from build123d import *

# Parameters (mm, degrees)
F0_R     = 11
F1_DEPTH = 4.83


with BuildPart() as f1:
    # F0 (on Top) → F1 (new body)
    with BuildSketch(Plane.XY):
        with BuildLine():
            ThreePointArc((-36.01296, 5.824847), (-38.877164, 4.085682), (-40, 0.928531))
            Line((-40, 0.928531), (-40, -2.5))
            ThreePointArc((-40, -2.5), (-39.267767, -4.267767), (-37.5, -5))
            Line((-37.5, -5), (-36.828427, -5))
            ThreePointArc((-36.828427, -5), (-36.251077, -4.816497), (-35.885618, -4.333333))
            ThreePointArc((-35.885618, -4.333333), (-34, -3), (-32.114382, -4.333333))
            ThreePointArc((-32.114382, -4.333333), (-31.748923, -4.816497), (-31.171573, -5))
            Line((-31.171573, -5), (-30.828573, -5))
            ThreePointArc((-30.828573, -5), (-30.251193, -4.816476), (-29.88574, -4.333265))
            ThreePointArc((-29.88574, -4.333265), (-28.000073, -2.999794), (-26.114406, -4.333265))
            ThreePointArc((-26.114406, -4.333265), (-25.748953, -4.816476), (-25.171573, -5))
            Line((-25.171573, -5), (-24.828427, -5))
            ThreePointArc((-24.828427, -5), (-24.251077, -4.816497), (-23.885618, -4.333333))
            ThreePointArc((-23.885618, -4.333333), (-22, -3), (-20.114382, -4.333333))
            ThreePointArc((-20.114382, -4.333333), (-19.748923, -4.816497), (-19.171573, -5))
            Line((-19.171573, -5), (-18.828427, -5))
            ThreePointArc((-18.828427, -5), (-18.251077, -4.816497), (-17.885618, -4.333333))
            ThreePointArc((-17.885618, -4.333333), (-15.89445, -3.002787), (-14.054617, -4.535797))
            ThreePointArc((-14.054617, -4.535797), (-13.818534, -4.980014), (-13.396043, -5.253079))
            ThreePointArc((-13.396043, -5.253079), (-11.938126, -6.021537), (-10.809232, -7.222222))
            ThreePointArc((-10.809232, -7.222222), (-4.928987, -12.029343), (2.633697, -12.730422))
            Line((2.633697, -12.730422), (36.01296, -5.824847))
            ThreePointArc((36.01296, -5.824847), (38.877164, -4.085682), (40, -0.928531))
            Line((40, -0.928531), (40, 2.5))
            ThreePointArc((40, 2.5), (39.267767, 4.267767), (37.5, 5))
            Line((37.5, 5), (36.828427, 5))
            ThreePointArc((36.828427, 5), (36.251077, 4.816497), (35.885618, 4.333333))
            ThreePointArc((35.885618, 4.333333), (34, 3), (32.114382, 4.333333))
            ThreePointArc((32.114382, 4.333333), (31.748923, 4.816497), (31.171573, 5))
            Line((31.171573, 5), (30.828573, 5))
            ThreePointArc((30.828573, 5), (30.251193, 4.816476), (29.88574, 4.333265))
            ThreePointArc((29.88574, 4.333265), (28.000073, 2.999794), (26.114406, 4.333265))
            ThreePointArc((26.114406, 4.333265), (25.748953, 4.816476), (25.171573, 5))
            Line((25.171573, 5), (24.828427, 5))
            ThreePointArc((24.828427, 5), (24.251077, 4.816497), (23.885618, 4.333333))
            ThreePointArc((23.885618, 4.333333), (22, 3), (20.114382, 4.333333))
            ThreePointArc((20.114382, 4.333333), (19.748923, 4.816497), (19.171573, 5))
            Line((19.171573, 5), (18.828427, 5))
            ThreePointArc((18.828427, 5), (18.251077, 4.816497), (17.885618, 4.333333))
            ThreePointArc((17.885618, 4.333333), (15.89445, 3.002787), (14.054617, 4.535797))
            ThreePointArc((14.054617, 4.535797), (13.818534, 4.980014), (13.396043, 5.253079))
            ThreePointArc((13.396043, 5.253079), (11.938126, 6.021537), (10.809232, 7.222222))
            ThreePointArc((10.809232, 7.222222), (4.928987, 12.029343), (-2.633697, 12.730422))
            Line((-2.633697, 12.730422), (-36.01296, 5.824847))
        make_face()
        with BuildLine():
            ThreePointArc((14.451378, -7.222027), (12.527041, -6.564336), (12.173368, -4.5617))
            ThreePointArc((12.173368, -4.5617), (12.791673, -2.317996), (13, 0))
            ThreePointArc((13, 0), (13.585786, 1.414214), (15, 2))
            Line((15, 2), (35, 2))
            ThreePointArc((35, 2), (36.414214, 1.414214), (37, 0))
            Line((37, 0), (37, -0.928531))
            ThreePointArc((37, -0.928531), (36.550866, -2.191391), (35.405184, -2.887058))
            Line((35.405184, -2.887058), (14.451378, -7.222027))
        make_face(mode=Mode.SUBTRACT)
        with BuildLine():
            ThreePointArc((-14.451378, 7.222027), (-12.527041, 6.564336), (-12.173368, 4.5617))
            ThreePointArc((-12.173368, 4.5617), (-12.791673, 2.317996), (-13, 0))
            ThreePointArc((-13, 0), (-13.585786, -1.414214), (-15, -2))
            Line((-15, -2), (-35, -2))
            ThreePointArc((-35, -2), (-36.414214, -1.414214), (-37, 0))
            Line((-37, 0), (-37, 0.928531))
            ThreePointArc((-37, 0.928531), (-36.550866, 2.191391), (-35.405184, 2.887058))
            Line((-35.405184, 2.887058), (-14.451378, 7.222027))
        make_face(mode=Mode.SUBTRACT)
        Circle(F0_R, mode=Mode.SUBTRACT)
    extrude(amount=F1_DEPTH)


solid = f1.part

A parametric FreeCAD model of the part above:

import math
import FreeCAD as App
import Part
import Sketcher

V = App.Vector

doc = App.newDocument("Part")
params = doc.addObject("Spreadsheet::Sheet", "Params")
for row, (alias, value) in enumerate([
    ("sketch1_diameter", "22 mm"),
    ("sketch1_radius", "4.999999 mm"),
    ("sketch1_radius2", "0.999999 mm"),
    ("sketch1_radius3", "2 mm"),
    ("sketch1_radius4", "0.999999 mm"),
    ("pad1_length", "4.83 mm"),
], start=1):
    params.set(f"A{row}", alias)
    params.set(f"B{row}", "=" + value)
    params.setAlias(f"B{row}", alias)

body = doc.addObject("PartDesign::Body", "Body")

# Sketch on XY plane
sketch1 = doc.addObject("Sketcher::SketchObject", "Sketch")
body.addObject(sketch1)
sketch1.AttachmentSupport = (doc.XY_Plane, [""])
sketch1.MapMode = "FlatFace"
sketch1.addGeometry([
    Part.ArcOfCircle(Part.Circle(V(-35.000001, 0.928532, 0), V(0, 0, 1), 4.999999), math.radians(101.68856), math.radians(180.000012)),  # 0
    Part.LineSegment(V(-40, 0.928531, 0), V(-40, -2.5, 0)),  # 1
    Part.ArcOfCircle(Part.Circle(V(-37.5, -2.5, 0), V(0, 0, 1), 2.5), math.radians(179.999996), math.radians(270.000004)),  # 2
    Part.LineSegment(V(-37.5, -5, 0), V(-36.828427, -5, 0)),  # 3
    Part.ArcOfCircle(Part.Circle(V(-36.828426, -4.000001, 0), V(0, 0, 1), 0.999999), math.radians(-90.000041), math.radians(-19.47115)),  # 4
    Part.ArcOfCircle(Part.Circle(V(-34, -5, 0), V(0, 0, 1), 2), math.radians(19.471232), math.radians(160.528768)),  # 5
    Part.ArcOfCircle(Part.Circle(V(-31.171574, -4.000001, 0), V(0, 0, 1), 0.999999), math.radians(-160.52885), math.radians(-89.999959)),  # 6
    Part.LineSegment(V(-31.171573, -5, 0), V(-30.828573, -5, 0)),  # 7
    Part.ArcOfCircle(Part.Circle(V(-30.828572, -4.000002, 0), V(0, 0, 1), 0.999998), math.radians(-90.000074), math.radians(-19.466982)),  # 8
    Part.ArcOfCircle(Part.Circle(V(-28.000073, -4.999794, 0), V(0, 0, 1), 2), math.radians(19.467045), math.radians(160.532955)),  # 9
    Part.ArcOfCircle(Part.Circle(V(-25.171574, -4.000002, 0), V(0, 0, 1), 0.999998), math.radians(-160.533018), math.radians(-89.999926)),  # 10
    Part.LineSegment(V(-25.171573, -5, 0), V(-24.828427, -5, 0)),  # 11
    Part.ArcOfCircle(Part.Circle(V(-24.828426, -4.000001, 0), V(0, 0, 1), 0.999999), math.radians(-90.000041), math.radians(-19.47115)),  # 12
    Part.ArcOfCircle(Part.Circle(V(-22, -5, 0), V(0, 0, 1), 2), math.radians(19.471232), math.radians(160.528768)),  # 13
    Part.ArcOfCircle(Part.Circle(V(-19.171574, -4.000001, 0), V(0, 0, 1), 0.999999), math.radians(-160.52885), math.radians(-89.999959)),  # 14
    Part.LineSegment(V(-19.171573, -5, 0), V(-18.828427, -5, 0)),  # 15
    Part.ArcOfCircle(Part.Circle(V(-18.828426, -4.000001, 0), V(0, 0, 1), 0.999999), math.radians(-90.000041), math.radians(-19.47115)),  # 16
    Part.ArcOfCircle(Part.Circle(V(-16, -5, 0), V(0, 0, 1), 2), math.radians(13.42082), math.radians(160.528776)),  # 17
    Part.ArcOfCircle(Part.Circle(V(-13.081924, -4.303694, 0), V(0, 0, 1), 1.000002), math.radians(-166.579084), math.radians(-108.307592)),  # 18
    Part.ArcOfCircle(Part.Circle(V(-14.966631, -10.000002, 0), V(0, 0, 1), 5.000003), math.radians(33.749004), math.radians(71.692462)),  # 19
    Part.ArcOfCircle(Part.Circle(V(0, -0.000002, 0), V(0, 0, 1), 12.999998), math.radians(-146.251019), math.radians(-78.311419)),  # 20
    Part.LineSegment(V(2.633697, -12.730422, 0), V(36.01296, -5.824847, 0)),  # 21
    Part.ArcOfCircle(Part.Circle(V(35.000001, -0.928532, 0), V(0, 0, 1), 4.999999), math.radians(-78.31144), math.radians(0.000012)),  # 22
    Part.LineSegment(V(40, -0.928531, 0), V(40, 2.5, 0)),  # 23
    Part.ArcOfCircle(Part.Circle(V(37.5, 2.5, 0), V(0, 0, 1), 2.5), math.radians(-0.000004), math.radians(90.000004)),  # 24
    Part.LineSegment(V(37.5, 5, 0), V(36.828427, 5, 0)),  # 25
    Part.ArcOfCircle(Part.Circle(V(36.828426, 4.000001, 0), V(0, 0, 1), 0.999999), math.radians(89.999959), math.radians(160.52885)),  # 26
    Part.ArcOfCircle(Part.Circle(V(34, 5, 0), V(0, 0, 1), 2), math.radians(-160.528768), math.radians(-19.471232)),  # 27
    Part.ArcOfCircle(Part.Circle(V(31.171574, 4.000001, 0), V(0, 0, 1), 0.999999), math.radians(19.47115), math.radians(90.000041)),  # 28
    Part.LineSegment(V(31.171573, 5, 0), V(30.828573, 5, 0)),  # 29
    Part.ArcOfCircle(Part.Circle(V(30.828572, 4.000002, 0), V(0, 0, 1), 0.999998), math.radians(89.999926), math.radians(160.533018)),  # 30
    Part.ArcOfCircle(Part.Circle(V(28.000073, 4.999794, 0), V(0, 0, 1), 2), math.radians(-160.532955), math.radians(-19.467045)),  # 31
    Part.ArcOfCircle(Part.Circle(V(25.171574, 4.000002, 0), V(0, 0, 1), 0.999998), math.radians(19.466982), math.radians(90.000074)),  # 32
    Part.LineSegment(V(25.171573, 5, 0), V(24.828427, 5, 0)),  # 33
    Part.ArcOfCircle(Part.Circle(V(24.828426, 4.000001, 0), V(0, 0, 1), 0.999999), math.radians(89.999959), math.radians(160.52885)),  # 34
    Part.ArcOfCircle(Part.Circle(V(22, 5, 0), V(0, 0, 1), 2), math.radians(-160.528768), math.radians(-19.471232)),  # 35
    Part.ArcOfCircle(Part.Circle(V(19.171574, 4.000001, 0), V(0, 0, 1), 0.999999), math.radians(19.47115), math.radians(90.000041)),  # 36
    Part.LineSegment(V(19.171573, 5, 0), V(18.828427, 5, 0)),  # 37
    Part.ArcOfCircle(Part.Circle(V(18.828426, 4.000001, 0), V(0, 0, 1), 0.999999), math.radians(89.999959), math.radians(160.52885)),  # 38
    Part.ArcOfCircle(Part.Circle(V(16, 5, 0), V(0, 0, 1), 2), math.radians(-166.57918), math.radians(-19.471224)),  # 39
    Part.ArcOfCircle(Part.Circle(V(13.081924, 4.303694, 0), V(0, 0, 1), 1.000002), math.radians(13.420916), math.radians(71.692408)),  # 40
    Part.ArcOfCircle(Part.Circle(V(14.966631, 10.000002, 0), V(0, 0, 1), 5.000003), math.radians(-146.250996), math.radians(-108.307538)),  # 41
    Part.ArcOfCircle(Part.Circle(V(0, 0.000002, 0), V(0, 0, 1), 12.999998), math.radians(33.748981), math.radians(101.688581)),  # 42
    Part.LineSegment(V(-2.633697, 12.730422, 0), V(-36.01296, 5.824847, 0)),  # 43
    Part.LineSegment(V(35.405184, -2.887058, 0), V(14.451378, -7.222027, 0)),  # 44
    Part.ArcOfCircle(Part.Circle(V(14.046195, -5.2635, 0), V(0, 0, 1), 2.000001), math.radians(159.457639), math.radians(281.688553)),  # 45
    Part.ArcOfCircle(Part.Circle(V(0.000014, -0.000002, 0), V(0, 0, 1), 12.999986), math.radians(-20.542387), math.radians(0.000009)),  # 46
    Part.ArcOfCircle(Part.Circle(V(14.999999, 0.000001, 0), V(0, 0, 1), 1.999999), math.radians(89.999957), math.radians(180.000043)),  # 47
    Part.LineSegment(V(15, 2, 0), V(35, 2, 0)),  # 48
    Part.ArcOfCircle(Part.Circle(V(35.000001, 0.000001, 0), V(0, 0, 1), 1.999999), math.radians(-0.000043), math.radians(90.000043)),  # 49
    Part.LineSegment(V(37, 0, 0), V(37, -0.928531, 0)),  # 50
    Part.ArcOfCircle(Part.Circle(V(34.999999, -0.928531, 0), V(0, 0, 1), 2.000001), math.radians(-78.311414), math.radians(0.000003)),  # 51
    Part.LineSegment(V(-35.405184, 2.887058, 0), V(-14.451378, 7.222027, 0)),  # 52
    Part.ArcOfCircle(Part.Circle(V(-14.046195, 5.2635, 0), V(0, 0, 1), 2.000001), math.radians(-20.542361), math.radians(101.688553)),  # 53
    Part.ArcOfCircle(Part.Circle(V(-0.000014, 0.000002, 0), V(0, 0, 1), 12.999986), math.radians(159.457613), math.radians(180.000009)),  # 54
    Part.ArcOfCircle(Part.Circle(V(-14.999999, -0.000001, 0), V(0, 0, 1), 1.999999), math.radians(-90.000043), math.radians(0.000043)),  # 55
    Part.LineSegment(V(-15, -2, 0), V(-35, -2, 0)),  # 56
    Part.ArcOfCircle(Part.Circle(V(-35.000001, -0.000001, 0), V(0, 0, 1), 1.999999), math.radians(179.999957), math.radians(270.000043)),  # 57
    Part.LineSegment(V(-37, 0, 0), V(-37, 0.928531, 0)),  # 58
    Part.ArcOfCircle(Part.Circle(V(-34.999999, 0.928531, 0), V(0, 0, 1), 2.000001), math.radians(101.688586), math.radians(180.000003)),  # 59
    Part.Circle(V(0, 0, 0), V(0, 0, 1), 11),  # 60
], False)
sketch1.addConstraint([
    Sketcher.Constraint("Coincident", 0, 2, 1, 1),
    Sketcher.Constraint("Coincident", 1, 2, 2, 1),
    Sketcher.Constraint("Coincident", 2, 2, 3, 1),
    Sketcher.Constraint("Coincident", 3, 2, 4, 1),
    Sketcher.Constraint("Coincident", 4, 2, 5, 2),
    Sketcher.Constraint("Coincident", 5, 1, 6, 1),
    Sketcher.Constraint("Coincident", 6, 2, 7, 1),
    Sketcher.Constraint("Coincident", 7, 2, 8, 1),
    Sketcher.Constraint("Coincident", 8, 2, 9, 2),
    Sketcher.Constraint("Coincident", 9, 1, 10, 1),
    Sketcher.Constraint("Coincident", 10, 2, 11, 1),
    Sketcher.Constraint("Coincident", 11, 2, 12, 1),
    Sketcher.Constraint("Coincident", 12, 2, 13, 2),
    Sketcher.Constraint("Coincident", 13, 1, 14, 1),
    Sketcher.Constraint("Coincident", 14, 2, 15, 1),
    Sketcher.Constraint("Coincident", 15, 2, 16, 1),
    Sketcher.Constraint("Coincident", 16, 2, 17, 2),
    Sketcher.Constraint("Coincident", 17, 1, 18, 1),
    Sketcher.Constraint("Coincident", 18, 2, 19, 2),
    Sketcher.Constraint("Coincident", 19, 1, 20, 1),
    Sketcher.Constraint("Coincident", 20, 2, 21, 1),
    Sketcher.Constraint("Coincident", 21, 2, 22, 1),
    Sketcher.Constraint("Coincident", 22, 2, 23, 1),
    Sketcher.Constraint("Coincident", 23, 2, 24, 1),
    Sketcher.Constraint("Coincident", 24, 2, 25, 1),
    Sketcher.Constraint("Coincident", 25, 2, 26, 1),
    Sketcher.Constraint("Coincident", 26, 2, 27, 2),
    Sketcher.Constraint("Coincident", 27, 1, 28, 1),
    Sketcher.Constraint("Coincident", 28, 2, 29, 1),
    Sketcher.Constraint("Coincident", 29, 2, 30, 1),
    Sketcher.Constraint("Coincident", 30, 2, 31, 2),
    Sketcher.Constraint("Coincident", 31, 1, 32, 1),
    Sketcher.Constraint("Coincident", 32, 2, 33, 1),
    Sketcher.Constraint("Coincident", 33, 2, 34, 1),
    Sketcher.Constraint("Coincident", 34, 2, 35, 2),
    Sketcher.Constraint("Coincident", 35, 1, 36, 1),
    Sketcher.Constraint("Coincident", 36, 2, 37, 1),
    Sketcher.Constraint("Coincident", 37, 2, 38, 1),
    Sketcher.Constraint("Coincident", 38, 2, 39, 2),
    Sketcher.Constraint("Coincident", 39, 1, 40, 1),
    Sketcher.Constraint("Coincident", 40, 2, 41, 2),
    Sketcher.Constraint("Coincident", 41, 1, 42, 1),
    Sketcher.Constraint("Coincident", 42, 2, 43, 1),
    Sketcher.Constraint("Coincident", 43, 2, 0, 1),
    Sketcher.Constraint("Coincident", 44, 2, 45, 2),
    Sketcher.Constraint("Coincident", 45, 1, 46, 1),
    Sketcher.Constraint("Coincident", 46, 2, 47, 2),
    Sketcher.Constraint("Coincident", 47, 1, 48, 1),
    Sketcher.Constraint("Coincident", 48, 2, 49, 2),
    Sketcher.Constraint("Coincident", 49, 1, 50, 1),
    Sketcher.Constraint("Coincident", 50, 2, 51, 2),
    Sketcher.Constraint("Coincident", 51, 1, 44, 1),
    Sketcher.Constraint("Coincident", 52, 2, 53, 2),
    Sketcher.Constraint("Coincident", 53, 1, 54, 1),
    Sketcher.Constraint("Coincident", 54, 2, 55, 2),
    Sketcher.Constraint("Coincident", 55, 1, 56, 1),
    Sketcher.Constraint("Coincident", 56, 2, 57, 2),
    Sketcher.Constraint("Coincident", 57, 1, 58, 1),
    Sketcher.Constraint("Coincident", 58, 2, 59, 2),
    Sketcher.Constraint("Coincident", 59, 1, 52, 1),
    Sketcher.Constraint("Vertical", 1),
    Sketcher.Constraint("Horizontal", 3),
    Sketcher.Constraint("Horizontal", 7),
    Sketcher.Constraint("Horizontal", 11),
    Sketcher.Constraint("Horizontal", 15),
    Sketcher.Constraint("Vertical", 23),
    Sketcher.Constraint("Horizontal", 25),
    Sketcher.Constraint("Horizontal", 29),
    Sketcher.Constraint("Horizontal", 33),
    Sketcher.Constraint("Horizontal", 37),
    Sketcher.Constraint("Horizontal", 48),
    Sketcher.Constraint("Vertical", 50),
    Sketcher.Constraint("Horizontal", 56),
    Sketcher.Constraint("Vertical", 58),
    Sketcher.Constraint("Coincident", 20, 3, -1, 1),
    Sketcher.Constraint("Coincident", 42, 3, -1, 1),
    Sketcher.Constraint("Coincident", 60, 3, -1, 1),
    Sketcher.Constraint("Coincident", 51, 3, 22, 3),
    Sketcher.Constraint("Coincident", 59, 3, 0, 3),
    Sketcher.Constraint("PointOnObject", 47, 3, -1),
    Sketcher.Constraint("PointOnObject", 49, 3, -1),
    Sketcher.Constraint("PointOnObject", 55, 3, -1),
    Sketcher.Constraint("PointOnObject", 57, 3, -1),
    Sketcher.Constraint("PointOnObject", 46, 2, -1),
    Sketcher.Constraint("PointOnObject", 49, 1, -1),
    Sketcher.Constraint("PointOnObject", 54, 2, -1),
    Sketcher.Constraint("PointOnObject", 57, 1, -1),
    Sketcher.Constraint("Diameter", 60, 22.0),
    Sketcher.Constraint("Radius", 0, 4.999999),
    Sketcher.Constraint("Radius", 4, 0.999999),
    Sketcher.Constraint("Radius", 5, 2.0),
    Sketcher.Constraint("Radius", 6, 0.999999),
    Sketcher.Constraint("Radius", 9, 2.0),
    Sketcher.Constraint("Radius", 12, 0.999999),
    Sketcher.Constraint("Radius", 13, 2.0),
    Sketcher.Constraint("Radius", 14, 0.999999),
    Sketcher.Constraint("Radius", 16, 0.999999),
    Sketcher.Constraint("Radius", 17, 2.0),
    Sketcher.Constraint("Radius", 18, 1.000002),
    Sketcher.Constraint("Radius", 22, 4.999999),
    Sketcher.Constraint("Radius", 26, 0.999999),
    Sketcher.Constraint("Radius", 27, 2.0),
    Sketcher.Constraint("Radius", 28, 0.999999),
    Sketcher.Constraint("Radius", 31, 2.0),
    Sketcher.Constraint("Radius", 34, 0.999999),
    Sketcher.Constraint("Radius", 35, 2.0),
    Sketcher.Constraint("Radius", 36, 0.999999),
    Sketcher.Constraint("Radius", 38, 0.999999),
    Sketcher.Constraint("Radius", 39, 2.0),
    Sketcher.Constraint("Radius", 40, 1.000002),
    Sketcher.Constraint("Radius", 45, 2.000001),
    Sketcher.Constraint("Radius", 47, 1.999999),
    Sketcher.Constraint("Radius", 51, 2.000001),
    Sketcher.Constraint("Radius", 53, 2.000001),
    Sketcher.Constraint("Radius", 55, 1.999999),
    Sketcher.Constraint("Radius", 59, 2.000001),
    Sketcher.Constraint("Radius", 2, 2.5),
    Sketcher.Constraint("Radius", 24, 2.5),
    Sketcher.Constraint("DistanceX", 48, 1, 48, 2, 20.0),
    Sketcher.Constraint("DistanceX", 56, 2, 56, 1, 20.0),
    Sketcher.Constraint("DistanceX", 0, 3, -1, 1, 35.000001),
    Sketcher.Constraint("DistanceY", 4, 3, -1, 1, 4.000001),
    Sketcher.Constraint("DistanceX", 5, 3, -1, 1, 34.0),
    Sketcher.Constraint("DistanceY", 5, 3, -1, 1, 5.0),
    Sketcher.Constraint("DistanceY", 6, 3, -1, 1, 4.000001),
    Sketcher.Constraint("DistanceY", 12, 3, -1, 1, 4.000001),
    Sketcher.Constraint("DistanceX", 13, 3, -1, 1, 22.0),
    Sketcher.Constraint("DistanceY", 13, 3, -1, 1, 5.0),
    Sketcher.Constraint("DistanceY", 14, 3, -1, 1, 4.000001),
    Sketcher.Constraint("DistanceX", 17, 3, -1, 1, 16.0),
    Sketcher.Constraint("DistanceY", 17, 3, -1, 1, 5.0),
    Sketcher.Constraint("DistanceX", -1, 1, 22, 3, 35.000001),
    Sketcher.Constraint("DistanceY", -1, 1, 26, 3, 4.000001),
    Sketcher.Constraint("DistanceX", -1, 1, 27, 3, 34.0),
    Sketcher.Constraint("DistanceY", -1, 1, 27, 3, 5.0),
    Sketcher.Constraint("DistanceY", -1, 1, 28, 3, 4.000001),
    Sketcher.Constraint("DistanceY", -1, 1, 34, 3, 4.000001),
    Sketcher.Constraint("DistanceX", -1, 1, 35, 3, 22.0),
    Sketcher.Constraint("DistanceY", -1, 1, 35, 3, 5.0),
    Sketcher.Constraint("DistanceY", -1, 1, 36, 3, 4.000001),
    Sketcher.Constraint("DistanceX", -1, 1, 39, 3, 16.0),
    Sketcher.Constraint("DistanceY", -1, 1, 39, 3, 5.0),
    Sketcher.Constraint("DistanceX", -1, 1, 47, 3, 14.999999),
    Sketcher.Constraint("DistanceX", 55, 3, -1, 1, 14.999999),
    Sketcher.Constraint("DistanceX", -1, 1, 47, 1, 15.0),
    Sketcher.Constraint("DistanceX", 55, 1, -1, 1, 15.0),
    Sketcher.Constraint("DistanceY", 1, 2, -1, 1, 2.5),
    Sketcher.Constraint("DistanceX", 2, 2, -1, 1, 37.5),
    Sketcher.Constraint("DistanceY", -1, 1, 23, 2, 2.5),
    Sketcher.Constraint("DistanceX", -1, 1, 24, 2, 37.5),
    Sketcher.Constraint("DistanceX", 7, 1, 7, 2, 0.343),
    Sketcher.Constraint("DistanceX", 29, 2, 29, 1, 0.343),
    Sketcher.Constraint("Radius", 8, 0.999998),
    Sketcher.Constraint("Radius", 10, 0.999998),
    Sketcher.Constraint("Radius", 19, 5.000003),
    Sketcher.Constraint("Radius", 20, 12.999998),
    Sketcher.Constraint("Radius", 30, 0.999998),
    Sketcher.Constraint("Radius", 32, 0.999998),
    Sketcher.Constraint("Radius", 41, 5.000003),
    Sketcher.Constraint("Radius", 42, 12.999998),
    Sketcher.Constraint("Radius", 46, 12.999986),
    Sketcher.Constraint("Radius", 54, 12.999986),
    Sketcher.Constraint("Distance", 21, 34.086099),
    Sketcher.Constraint("Distance", 43, 34.086099),
    Sketcher.Constraint("DistanceY", 1, 2, 1, 1, 3.428531),
    Sketcher.Constraint("DistanceY", 23, 1, 23, 2, 3.428531),
    Sketcher.Constraint("DistanceY", 50, 2, 50, 1, 0.928531),
    Sketcher.Constraint("DistanceY", 58, 1, 58, 2, 0.928531),
    Sketcher.Constraint("DistanceY", 45, 3, -1, 1, 5.2635),
    Sketcher.Constraint("DistanceY", -1, 1, 53, 3, 5.2635),
    Sketcher.Constraint("DistanceY", 45, 1, -1, 1, 4.5617),
    Sketcher.Constraint("DistanceY", -1, 1, 53, 1, 4.5617),
    Sketcher.Constraint("Distance", 44, 21.397522),
    Sketcher.Constraint("Distance", 52, 21.397522),
    Sketcher.Constraint("DistanceX", 3, 1, 3, 2, 0.671573),
    Sketcher.Constraint("DistanceX", 11, 1, 11, 2, 0.343146),
    Sketcher.Constraint("DistanceX", 15, 1, 15, 2, 0.343146),
    Sketcher.Constraint("DistanceX", 25, 2, 25, 1, 0.671573),
    Sketcher.Constraint("DistanceX", 33, 2, 33, 1, 0.343146),
    Sketcher.Constraint("DistanceX", 37, 2, 37, 1, 0.343146),
    Sketcher.Constraint("DistanceX", 8, 3, -1, 1, 30.828572),
    Sketcher.Constraint("DistanceX", 19, 3, -1, 1, 14.966631),
    Sketcher.Constraint("DistanceX", -1, 1, 30, 3, 30.828572),
    Sketcher.Constraint("DistanceX", -1, 1, 41, 3, 14.966631),
    Sketcher.Constraint("DistanceY", 51, 3, -1, 1, 0.928531),
    Sketcher.Constraint("DistanceY", -1, 1, 59, 3, 0.928531),
    Sketcher.Constraint("DistanceX", 4, 2, -1, 1, 35.885618),
    Sketcher.Constraint("DistanceX", 8, 2, -1, 1, 29.88574),
    Sketcher.Constraint("DistanceX", 12, 2, -1, 1, 23.885618),
    Sketcher.Constraint("DistanceX", 16, 2, -1, 1, 17.885618),
    Sketcher.Constraint("DistanceY", 18, 2, -1, 1, 5.253079),
    Sketcher.Constraint("DistanceX", 19, 1, -1, 1, 10.809232),
    Sketcher.Constraint("DistanceY", 20, 2, -1, 1, 12.730422),
    Sketcher.Constraint("DistanceX", -1, 1, 26, 2, 35.885618),
    Sketcher.Constraint("DistanceX", -1, 1, 30, 2, 29.88574),
    Sketcher.Constraint("DistanceX", -1, 1, 34, 2, 23.885618),
    Sketcher.Constraint("DistanceX", -1, 1, 38, 2, 17.885618),
    Sketcher.Constraint("DistanceY", -1, 1, 40, 2, 5.253079),
    Sketcher.Constraint("DistanceX", -1, 1, 41, 1, 10.809232),
    Sketcher.Constraint("DistanceY", -1, 1, 42, 2, 12.730422),
    Sketcher.Constraint("DistanceX", 9, 3, -1, 1, 28.000073),
    Sketcher.Constraint("DistanceX", -1, 1, 31, 3, 28.000073),
    Sketcher.Constraint("DistanceX", -1, 1, 45, 3, 14.046195),
    Sketcher.Constraint("DistanceX", 53, 3, -1, 1, 14.046195),
    Sketcher.Constraint("DistanceX", 5, 1, -1, 1, 32.114382),
    Sketcher.Constraint("DistanceX", 6, 2, -1, 1, 31.171573),
    Sketcher.Constraint("DistanceX", 9, 1, -1, 1, 26.114406),
    Sketcher.Constraint("DistanceX", 10, 2, -1, 1, 25.171573),
    Sketcher.Constraint("DistanceX", 13, 1, -1, 1, 20.114382),
    Sketcher.Constraint("DistanceX", 14, 2, -1, 1, 19.171573),
    Sketcher.Constraint("DistanceX", 17, 1, -1, 1, 14.054617),
    Sketcher.Constraint("DistanceX", -1, 1, 27, 1, 32.114382),
    Sketcher.Constraint("DistanceX", -1, 1, 28, 2, 31.171573),
    Sketcher.Constraint("DistanceX", -1, 1, 31, 1, 26.114406),
    Sketcher.Constraint("DistanceX", -1, 1, 32, 2, 25.171573),
    Sketcher.Constraint("DistanceX", -1, 1, 35, 1, 20.114382),
    Sketcher.Constraint("DistanceX", -1, 1, 36, 2, 19.171573),
    Sketcher.Constraint("DistanceX", -1, 1, 39, 1, 14.054617),
    Sketcher.Constraint("DistanceX", -1, 1, 44, 2, 14.451378),
    Sketcher.Constraint("DistanceX", 52, 2, -1, 1, 14.451378),
])
sketch1.setExpression("Constraints[87]", "Params.sketch1_diameter")
sketch1.setExpression("Constraints[88]", "Params.sketch1_radius")
sketch1.setExpression("Constraints[89]", "Params.sketch1_radius2")
sketch1.setExpression("Constraints[90]", "Params.sketch1_radius3")
sketch1.setExpression("Constraints[91]", "Params.sketch1_radius4")
pad1 = doc.addObject("PartDesign::Pad", "Pad")
body.addObject(pad1)
pad1.Profile = sketch1
pad1.setExpression("Length", "Params.pad1_length")

doc.recompute()
